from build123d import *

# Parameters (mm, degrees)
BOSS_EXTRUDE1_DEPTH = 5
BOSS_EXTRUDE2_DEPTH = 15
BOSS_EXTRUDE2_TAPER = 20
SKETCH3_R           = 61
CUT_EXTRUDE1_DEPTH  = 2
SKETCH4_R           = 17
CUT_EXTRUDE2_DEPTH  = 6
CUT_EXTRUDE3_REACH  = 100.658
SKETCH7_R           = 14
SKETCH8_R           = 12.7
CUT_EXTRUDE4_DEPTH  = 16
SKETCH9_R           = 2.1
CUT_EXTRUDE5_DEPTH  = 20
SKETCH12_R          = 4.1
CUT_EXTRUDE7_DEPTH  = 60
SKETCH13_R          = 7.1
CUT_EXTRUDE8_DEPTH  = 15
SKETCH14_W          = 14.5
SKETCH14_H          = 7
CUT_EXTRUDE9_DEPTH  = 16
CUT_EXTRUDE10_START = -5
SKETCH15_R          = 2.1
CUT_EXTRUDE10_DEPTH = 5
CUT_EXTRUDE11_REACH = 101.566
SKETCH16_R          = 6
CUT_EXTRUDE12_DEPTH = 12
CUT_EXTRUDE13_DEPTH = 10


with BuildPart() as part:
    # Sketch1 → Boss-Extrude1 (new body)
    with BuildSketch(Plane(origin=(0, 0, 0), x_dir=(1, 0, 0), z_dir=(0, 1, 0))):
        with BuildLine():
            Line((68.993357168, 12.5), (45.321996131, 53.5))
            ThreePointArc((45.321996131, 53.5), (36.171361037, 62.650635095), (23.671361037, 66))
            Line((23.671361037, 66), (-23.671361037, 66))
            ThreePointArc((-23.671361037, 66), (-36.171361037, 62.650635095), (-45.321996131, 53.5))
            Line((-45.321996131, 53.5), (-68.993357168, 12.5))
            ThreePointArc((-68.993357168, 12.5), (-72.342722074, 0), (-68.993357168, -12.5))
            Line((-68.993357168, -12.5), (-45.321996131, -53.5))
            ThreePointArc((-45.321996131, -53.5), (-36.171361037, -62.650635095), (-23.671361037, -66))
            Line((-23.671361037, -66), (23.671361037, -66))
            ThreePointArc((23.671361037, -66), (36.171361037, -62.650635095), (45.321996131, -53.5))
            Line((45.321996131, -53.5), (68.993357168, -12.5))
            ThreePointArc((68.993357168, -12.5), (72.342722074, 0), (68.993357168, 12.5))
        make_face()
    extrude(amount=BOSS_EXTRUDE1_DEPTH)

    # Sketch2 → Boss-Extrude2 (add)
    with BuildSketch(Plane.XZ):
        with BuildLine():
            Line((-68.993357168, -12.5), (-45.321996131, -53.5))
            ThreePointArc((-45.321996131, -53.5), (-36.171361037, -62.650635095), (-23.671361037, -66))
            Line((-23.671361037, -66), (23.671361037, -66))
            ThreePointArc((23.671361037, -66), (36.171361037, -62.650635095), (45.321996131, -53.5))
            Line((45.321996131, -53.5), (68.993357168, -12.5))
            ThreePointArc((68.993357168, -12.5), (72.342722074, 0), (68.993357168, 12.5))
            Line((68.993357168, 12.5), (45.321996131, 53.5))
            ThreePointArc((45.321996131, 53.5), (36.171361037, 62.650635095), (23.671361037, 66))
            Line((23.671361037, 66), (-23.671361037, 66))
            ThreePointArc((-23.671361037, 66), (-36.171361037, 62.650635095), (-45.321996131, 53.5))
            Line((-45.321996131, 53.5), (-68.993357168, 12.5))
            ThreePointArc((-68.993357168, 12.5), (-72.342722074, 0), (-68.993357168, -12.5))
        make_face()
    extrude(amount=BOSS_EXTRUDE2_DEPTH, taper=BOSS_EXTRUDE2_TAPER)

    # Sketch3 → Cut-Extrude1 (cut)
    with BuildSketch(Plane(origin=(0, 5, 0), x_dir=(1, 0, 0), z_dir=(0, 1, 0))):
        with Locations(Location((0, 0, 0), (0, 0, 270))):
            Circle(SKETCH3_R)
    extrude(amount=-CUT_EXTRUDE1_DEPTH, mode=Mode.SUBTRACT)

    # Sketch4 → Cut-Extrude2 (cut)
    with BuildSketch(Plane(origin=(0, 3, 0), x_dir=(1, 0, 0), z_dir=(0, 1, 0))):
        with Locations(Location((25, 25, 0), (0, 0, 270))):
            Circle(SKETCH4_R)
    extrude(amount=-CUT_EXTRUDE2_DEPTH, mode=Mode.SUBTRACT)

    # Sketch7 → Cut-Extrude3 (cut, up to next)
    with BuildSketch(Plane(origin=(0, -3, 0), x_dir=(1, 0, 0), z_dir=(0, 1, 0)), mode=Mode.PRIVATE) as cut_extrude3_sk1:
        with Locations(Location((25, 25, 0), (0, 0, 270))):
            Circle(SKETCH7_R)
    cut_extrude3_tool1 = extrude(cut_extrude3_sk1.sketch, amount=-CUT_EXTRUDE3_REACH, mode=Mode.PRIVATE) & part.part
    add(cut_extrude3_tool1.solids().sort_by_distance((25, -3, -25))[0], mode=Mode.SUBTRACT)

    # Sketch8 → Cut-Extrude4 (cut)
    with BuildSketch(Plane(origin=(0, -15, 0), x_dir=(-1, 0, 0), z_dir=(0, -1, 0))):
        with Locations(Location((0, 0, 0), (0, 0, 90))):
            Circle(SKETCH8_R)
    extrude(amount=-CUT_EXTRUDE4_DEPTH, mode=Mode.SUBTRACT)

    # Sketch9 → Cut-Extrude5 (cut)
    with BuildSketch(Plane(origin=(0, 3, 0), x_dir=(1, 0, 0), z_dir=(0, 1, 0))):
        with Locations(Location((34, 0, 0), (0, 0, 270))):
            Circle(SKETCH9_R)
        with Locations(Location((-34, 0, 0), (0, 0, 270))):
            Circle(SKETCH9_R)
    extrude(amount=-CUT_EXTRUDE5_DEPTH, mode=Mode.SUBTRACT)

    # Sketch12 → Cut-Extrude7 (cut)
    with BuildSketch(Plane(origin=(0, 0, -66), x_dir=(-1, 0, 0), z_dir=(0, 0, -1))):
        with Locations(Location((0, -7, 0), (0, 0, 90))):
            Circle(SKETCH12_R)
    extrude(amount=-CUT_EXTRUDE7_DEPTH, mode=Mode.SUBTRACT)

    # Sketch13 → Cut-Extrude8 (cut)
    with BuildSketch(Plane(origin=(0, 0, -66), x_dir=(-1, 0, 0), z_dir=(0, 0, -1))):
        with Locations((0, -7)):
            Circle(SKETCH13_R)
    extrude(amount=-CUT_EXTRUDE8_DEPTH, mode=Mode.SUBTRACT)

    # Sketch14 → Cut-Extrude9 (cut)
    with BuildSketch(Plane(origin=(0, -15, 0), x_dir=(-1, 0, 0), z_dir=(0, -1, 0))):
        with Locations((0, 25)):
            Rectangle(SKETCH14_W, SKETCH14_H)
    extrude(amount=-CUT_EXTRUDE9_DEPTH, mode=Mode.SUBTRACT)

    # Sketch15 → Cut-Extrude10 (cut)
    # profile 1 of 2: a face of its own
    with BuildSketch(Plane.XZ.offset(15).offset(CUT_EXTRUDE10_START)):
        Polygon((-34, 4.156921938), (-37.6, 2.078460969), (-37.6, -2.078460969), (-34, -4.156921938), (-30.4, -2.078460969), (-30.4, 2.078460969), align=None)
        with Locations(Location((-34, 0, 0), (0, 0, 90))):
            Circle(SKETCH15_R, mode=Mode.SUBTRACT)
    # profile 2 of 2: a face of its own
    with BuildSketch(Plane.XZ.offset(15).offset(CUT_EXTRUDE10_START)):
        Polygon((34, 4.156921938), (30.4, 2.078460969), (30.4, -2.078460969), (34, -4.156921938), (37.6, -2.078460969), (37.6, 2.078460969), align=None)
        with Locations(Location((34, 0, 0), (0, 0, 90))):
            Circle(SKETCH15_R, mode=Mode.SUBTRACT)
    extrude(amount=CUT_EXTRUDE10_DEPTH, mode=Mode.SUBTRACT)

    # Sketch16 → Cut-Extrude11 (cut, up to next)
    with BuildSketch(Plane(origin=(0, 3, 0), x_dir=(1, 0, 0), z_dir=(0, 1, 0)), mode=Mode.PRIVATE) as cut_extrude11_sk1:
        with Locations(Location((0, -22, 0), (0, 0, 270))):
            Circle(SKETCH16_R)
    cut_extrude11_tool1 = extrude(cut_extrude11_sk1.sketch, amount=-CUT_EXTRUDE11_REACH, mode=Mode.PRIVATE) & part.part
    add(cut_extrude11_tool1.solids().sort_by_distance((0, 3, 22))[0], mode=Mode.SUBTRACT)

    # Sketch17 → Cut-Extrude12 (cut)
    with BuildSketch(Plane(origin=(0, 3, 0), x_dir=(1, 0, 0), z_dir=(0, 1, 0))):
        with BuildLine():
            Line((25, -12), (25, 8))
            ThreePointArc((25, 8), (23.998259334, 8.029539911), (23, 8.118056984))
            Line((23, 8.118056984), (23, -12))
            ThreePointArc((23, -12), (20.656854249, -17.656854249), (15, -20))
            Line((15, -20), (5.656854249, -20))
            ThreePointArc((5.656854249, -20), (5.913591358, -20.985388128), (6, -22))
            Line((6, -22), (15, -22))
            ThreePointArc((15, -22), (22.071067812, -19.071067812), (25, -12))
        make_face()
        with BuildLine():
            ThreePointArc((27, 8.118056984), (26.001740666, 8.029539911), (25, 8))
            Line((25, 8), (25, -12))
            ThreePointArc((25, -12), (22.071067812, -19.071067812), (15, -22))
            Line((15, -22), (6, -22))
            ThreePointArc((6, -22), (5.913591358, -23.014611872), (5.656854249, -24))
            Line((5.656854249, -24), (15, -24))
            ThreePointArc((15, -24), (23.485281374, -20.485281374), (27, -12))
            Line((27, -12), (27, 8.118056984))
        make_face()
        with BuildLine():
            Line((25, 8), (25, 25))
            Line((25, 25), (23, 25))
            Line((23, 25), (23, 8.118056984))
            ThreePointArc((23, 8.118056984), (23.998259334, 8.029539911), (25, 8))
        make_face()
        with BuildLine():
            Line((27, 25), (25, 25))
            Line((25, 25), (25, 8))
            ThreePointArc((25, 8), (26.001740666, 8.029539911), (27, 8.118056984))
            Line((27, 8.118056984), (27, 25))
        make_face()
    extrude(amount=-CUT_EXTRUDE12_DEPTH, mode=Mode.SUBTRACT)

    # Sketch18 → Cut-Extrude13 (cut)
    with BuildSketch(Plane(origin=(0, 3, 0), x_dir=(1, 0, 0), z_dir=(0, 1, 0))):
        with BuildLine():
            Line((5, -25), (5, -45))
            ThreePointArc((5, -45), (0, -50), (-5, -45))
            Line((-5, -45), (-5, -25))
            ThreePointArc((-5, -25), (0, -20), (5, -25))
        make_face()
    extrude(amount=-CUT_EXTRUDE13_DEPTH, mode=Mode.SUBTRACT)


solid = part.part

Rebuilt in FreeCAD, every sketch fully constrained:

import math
import FreeCAD as App
import Part
import Sketcher

V = App.Vector
Q = App.Units.Quantity


def add_polygon(sketch, points):
    """Adds a closed chain of lines whose ends are joined by coincident constraints."""
    first, n = sketch.GeometryCount, len(points)
    for a, b in zip(points, points[1:] + points[:1]):
        sketch.addGeometry(Part.LineSegment(App.Vector(*a, 0), App.Vector(*b, 0)), False)
    for i in range(n):
        sketch.addConstraint(Sketcher.Constraint("Coincident", first + i, 2, first + (i + 1) % n, 1))

doc = App.newDocument("Part")
body = doc.addObject("PartDesign::Body", "Body")

sketch1 = doc.addObject("Sketcher::SketchObject", "Sketch")
body.addObject(sketch1)
sketch1.AttachmentSupport = (doc.XZ_Plane, [""])
sketch1.MapMode = "FlatFace"
sketch1.addGeometry([
    Part.LineSegment(V(69, -12, 0), V(45, -54, 0)),
    Part.ArcOfCircle(Part.Circle(V(24, -41, 0), V(0, 0, 1), 25), math.radians(-90), math.radians(-30)),
    Part.LineSegment(V(24, -66, 0), V(-24, -66, 0)),
    Part.ArcOfCircle(Part.Circle(V(-24, -41, 0), V(0, 0, 1), 25), math.radians(-150), math.radians(-90)),
    Part.LineSegment(V(-45, -54, 0), V(-69, -12, 0)),
    Part.ArcOfCircle(Part.Circle(V(-47, 0, 0), V(0, 0, 1), 25), math.radians(150), math.radians(210)),
    Part.LineSegment(V(-69, 12, 0), V(-45, 54, 0)),
    Part.ArcOfCircle(Part.Circle(V(-24, 41, 0), V(0, 0, 1), 25), math.radians(90), math.radians(150)),
    Part.LineSegment(V(-24, 66, 0), V(24, 66, 0)),
    Part.ArcOfCircle(Part.Circle(V(24, 41, 0), V(0, 0, 1), 25), math.radians(30), math.radians(90)),
    Part.LineSegment(V(45, 54, 0), V(69, 12, 0)),
    Part.ArcOfCircle(Part.Circle(V(47, 0, 0), V(0, 0, 1), 25), math.radians(-30), math.radians(30)),
], False)
sketch1.addConstraint([
    Sketcher.Constraint("Tangent", 0, 2, 1, 2),
    Sketcher.Constraint("Tangent", 1, 1, 2, 1),
    Sketcher.Constraint("Tangent", 2, 2, 3, 2),
    Sketcher.Constraint("Tangent", 3, 1, 4, 1),
    Sketcher.Constraint("Tangent", 4, 2, 5, 2),
    Sketcher.Constraint("Tangent", 5, 1, 6, 1),
    Sketcher.Constraint("Tangent", 6, 2, 7, 2),
    Sketcher.Constraint("Tangent", 7, 1, 8, 1),
    Sketcher.Constraint("Tangent", 8, 2, 9, 2),
    Sketcher.Constraint("Tangent", 9, 1, 10, 1),
    Sketcher.Constraint("Tangent", 10, 2, 11, 2),
    Sketcher.Constraint("Tangent", 11, 1, 0, 1),
    Sketcher.Constraint("Horizontal", 2),
    Sketcher.Constraint("Horizontal", 8),
    Sketcher.Constraint("Equal", 1, 3),
    Sketcher.Constraint("Equal", 3, 5),
    Sketcher.Constraint("Equal", 5, 7),
    Sketcher.Constraint("Equal", 7, 9),
    Sketcher.Constraint("Equal", 9, 11),
    Sketcher.Constraint("Symmetric", 1, 3, 7, 3, -1, 1),
    Sketcher.Constraint("Symmetric", 5, 3, 11, 3, -1, 1),
    Sketcher.Constraint("Symmetric", 0, 2, 3, 1, -2),
    Sketcher.Constraint("Parallel", 4, 10),
    Sketcher.Constraint("Radius", 1, 25.0),
    Sketcher.Constraint("Angle", 0, Q("-120 deg")),
    Sketcher.Constraint("DistanceY", 1, 3, -1, 1, 41.0),
    Sketcher.Constraint("DistanceX", 2, 2, 2, 1, 47.342722),
])
pad1 = doc.addObject("PartDesign::Pad", "Pad")
body.addObject(pad1)
pad1.Profile = sketch1
pad1.Length = 5
pad1.Reversed = True

sketch2 = doc.addObject("Sketcher::SketchObject", "Sketch001")
body.addObject(sketch2)
sketch2.AttachmentSupport = (doc.XZ_Plane, [""])
sketch2.MapMode = "FlatFace"
sketch2.addGeometry([
    Part.LineSegment(V(-69, -12, 0), V(-45, -54, 0)),
    Part.ArcOfCircle(Part.Circle(V(-24, -41, 0), V(0, 0, 1), 25), math.radians(-150), math.radians(-90)),
    Part.LineSegment(V(-24, -66, 0), V(24, -66, 0)),
    Part.ArcOfCircle(Part.Circle(V(24, -41, 0), V(0, 0, 1), 25), math.radians(-90), math.radians(-30)),
    Part.LineSegment(V(45, -54, 0), V(69, -12, 0)),
    Part.ArcOfCircle(Part.Circle(V(47, 0, 0), V(0, 0, 1), 25), math.radians(-30), math.radians(30)),
    Part.LineSegment(V(69, 12, 0), V(45, 54, 0)),
    Part.ArcOfCircle(Part.Circle(V(24, 41, 0), V(0, 0, 1), 25), math.radians(30), math.radians(90)),
    Part.LineSegment(V(24, 66, 0), V(-24, 66, 0)),
    Part.ArcOfCircle(Part.Circle(V(-24, 41, 0), V(0, 0, 1), 25), math.radians(90), math.radians(150)),
    Part.LineSegment(V(-45, 54, 0), V(-69, 12, 0)),
    Part.ArcOfCircle(Part.Circle(V(-47, 0, 0), V(0, 0, 1), 25), math.radians(150), math.radians(210)),
], False)
sketch2.addConstraint([
    Sketcher.Constraint("Tangent", 0, 2, 1, 1),
    Sketcher.Constraint("Tangent", 1, 2, 2, 1),
    Sketcher.Constraint("Tangent", 2, 2, 3, 1),
    Sketcher.Constraint("Tangent", 3, 2, 4, 1),
    Sketcher.Constraint("Tangent", 4, 2, 5, 1),
    Sketcher.Constraint("Tangent", 5, 2, 6, 1),
    Sketcher.Constraint("Tangent", 6, 2, 7, 1),
    Sketcher.Constraint("Tangent", 7, 2, 8, 1),
    Sketcher.Constraint("Tangent", 8, 2, 9, 1),
    Sketcher.Constraint("Tangent", 9, 2, 10, 1),
    Sketcher.Constraint("Tangent", 10, 2, 11, 1),
    Sketcher.Constraint("Tangent", 11, 2, 0, 1),
    Sketcher.Constraint("Horizontal", 2),
    Sketcher.Constraint("Horizontal", 8),
    Sketcher.Constraint("Equal", 1, 3),
    Sketcher.Constraint("Equal", 3, 5),
    Sketcher.Constraint("Equal", 5, 7),
    Sketcher.Constraint("Equal", 7, 9),
    Sketcher.Constraint("Equal", 9, 11),
    Sketcher.Constraint("Symmetric", 1, 3, 7, 3, -1, 1),
    Sketcher.Constraint("Symmetric", 5, 3, 11, 3, -1, 1),
    Sketcher.Constraint("Symmetric", 0, 2, 3, 2, -2),
    Sketcher.Constraint("Parallel", 4, 10),
    Sketcher.Constraint("Radius", 1, 25.0),
    Sketcher.Constraint("Angle", 0, Q("-60 deg")),
    Sketcher.Constraint("DistanceY", 1, 3, -1, 1, 41.0),
    Sketcher.Constraint("DistanceX", 2, 1, 2, 2, 47.342722),
])
pad2 = doc.addObject("PartDesign::Pad", "Pad001")
body.addObject(pad2)
pad2.Profile = sketch2
pad2.Length = 15
pad2.TaperAngle = -20

sketch3 = doc.addObject("Sketcher::SketchObject", "Sketch002")
body.addObject(sketch3)
sketch3.AttachmentSupport = (doc.XZ_Plane, [""])
sketch3.MapMode = "FlatFace"
sketch3.AttachmentOffset = App.Placement(V(0, 0, -5), App.Rotation())
sketch3.addGeometry(Part.Circle(V(0, 0, 0), V(0, 0, 1), 61), False)
sketch3.addConstraint([
    Sketcher.Constraint("Coincident", 0, 3, -1, 1),
    Sketcher.Constraint("Diameter", 0, 122.0),
])
pocket1 = doc.addObject("PartDesign::Pocket", "Pocket")
body.addObject(pocket1)
pocket1.Profile = sketch3
pocket1.Length = 2
pocket1.Reversed = True

sketch4 = doc.addObject("Sketcher::SketchObject", "Sketch003")
body.addObject(sketch4)
sketch4.AttachmentSupport = (doc.XZ_Plane, [""])
sketch4.MapMode = "FlatFace"
sketch4.AttachmentOffset = App.Placement(V(0, 0, -3), App.Rotation())
sketch4.addGeometry(Part.Circle(V(25, -25, 0), V(0, 0, 1), 17), False)
sketch4.addConstraint([
    Sketcher.Constraint("Diameter", 0, 34.0),
    Sketcher.Constraint("DistanceX", -1, 1, 0, 3, 25.0),
    Sketcher.Constraint("DistanceY", 0, 3, -1, 1, 25.0),
])
pocket2 = doc.addObject("PartDesign::Pocket", "Pocket001")
body.addObject(pocket2)
pocket2.Profile = sketch4
pocket2.Length = 6
pocket2.Reversed = True

sketch5 = doc.addObject("Sketcher::SketchObject", "Sketch004")
body.addObject(sketch5)
sketch5.AttachmentSupport = (doc.XZ_Plane, [""])
sketch5.MapMode = "FlatFace"
sketch5.AttachmentOffset = App.Placement(V(0, 0, 3), App.Rotation())
sketch5.addGeometry(Part.Circle(V(25, -25, 0), V(0, 0, 1), 14), False)
sketch5.addConstraint([
    Sketcher.Constraint("Diameter", 0, 28.0),
    Sketcher.Constraint("DistanceX", -1, 1, 0, 3, 25.0),
    Sketcher.Constraint("DistanceY", 0, 3, -1, 1, 25.0),
])
pocket3 = doc.addObject("PartDesign::Pocket", "Pocket002")
body.addObject(pocket3)
pocket3.Profile = sketch5
pocket3.Type = "UpToFirst"
pocket3.Reversed = True

sketch6 = doc.addObject("Sketcher::SketchObject", "Sketch005")
body.addObject(sketch6)
sketch6.AttachmentSupport = (doc.XZ_Plane, [""])
sketch6.MapMode = "FlatFace"
sketch6.AttachmentOffset = App.Placement(V(0, 0, 15), App.Rotation())
sketch6.addGeometry(Part.Circle(V(0, 0, 0), V(0, 0, 1), 13), False)
sketch6.addConstraint([
    Sketcher.Constraint("Coincident", 0, 3, -1, 1),
    Sketcher.Constraint("Diameter", 0, 25.4),
])
pocket4 = doc.addObject("PartDesign::Pocket", "Pocket003")
body.addObject(pocket4)
pocket4.Profile = sketch6
pocket4.Length = 16

sketch7 = doc.addObject("Sketcher::SketchObject", "Sketch006")
body.addObject(sketch7)
sketch7.AttachmentSupport = (doc.XZ_Plane, [""])
sketch7.MapMode = "FlatFace"
sketch7.AttachmentOffset = App.Placement(V(0, 0, -3), App.Rotation())
sketch7.addGeometry([
    Part.Circle(V(34, 0, 0), V(0, 0, 1), 2.1),
    Part.Circle(V(-34, 0, 0), V(0, 0, 1), 2.1),
], False)
sketch7.addConstraint([
    Sketcher.Constraint("Equal", 0, 1),
    Sketcher.Constraint("Symmetric", 0, 3, 1, 3, -1, 1),
    Sketcher.Constraint("PointOnObject", 0, 3, -1),
    Sketcher.Constraint("Diameter", 0, 4.2),
    Sketcher.Constraint("DistanceX", -1, 1, 0, 3, 34.0),
])
pocket5 = doc.addObject("PartDesign::Pocket", "Pocket004")
body.addObject(pocket5)
pocket5.Profile = sketch7
pocket5.Length = 20
pocket5.Reversed = True

sketch8 = doc.addObject("Sketcher::SketchObject", "Sketch007")
body.addObject(sketch8)
sketch8.AttachmentSupport = (doc.XY_Plane, [""])
sketch8.MapMode = "FlatFace"
sketch8.AttachmentOffset = App.Placement(V(0, 0, -66), App.Rotation())
sketch8.addGeometry(Part.Circle(V(0, -7, 0), V(0, 0, 1), 4.1), False)
sketch8.addConstraint([
    Sketcher.Constraint("PointOnObject", 0, 3, -2),
    Sketcher.Constraint("Diameter", 0, 8.2),
    Sketcher.Constraint("DistanceY", 0, 3, -1, 1, 7.0),
])
pocket6 = doc.addObject("PartDesign::Pocket", "Pocket005")
body.addObject(pocket6)
pocket6.Profile = sketch8
pocket6.Length = 60
pocket6.Reversed = True

sketch9 = doc.addObject("Sketcher::SketchObject", "Sketch008")
body.addObject(sketch9)
sketch9.AttachmentSupport = (doc.XY_Plane, [""])
sketch9.MapMode = "FlatFace"
sketch9.AttachmentOffset = App.Placement(V(0, 0, -66), App.Rotation())
sketch9.addGeometry(Part.Circle(V(0, -7, 0), V(0, 0, 1), 7), False)
sketch9.addConstraint([
    Sketcher.Constraint("PointOnObject", 0, 3, -2),
    Sketcher.Constraint("Diameter", 0, 14.2),
    Sketcher.Constraint("DistanceY", 0, 3, -1, 1, 7.0),
])
pocket7 = doc.addObject("PartDesign::Pocket", "Pocket006")
body.addObject(pocket7)
pocket7.Profile = sketch9
pocket7.Length = 15
pocket7.Reversed = True

sketch10 = doc.addObject("Sketcher::SketchObject", "Sketch009")
body.addObject(sketch10)
sketch10.AttachmentSupport = (doc.XZ_Plane, [""])
sketch10.MapMode = "FlatFace"
sketch10.AttachmentOffset = App.Placement(V(0, 0, 15), App.Rotation())
add_polygon(sketch10, [(7, -28), (7, -22), (-7, -22), (-7, -28)])
sketch10.addConstraint([
    Sketcher.Constraint("Vertical", 0),
    Sketcher.Constraint("Horizontal", 1),
    Sketcher.Constraint("Vertical", 2),
    Sketcher.Constraint("Horizontal", 3),
    Sketcher.Constraint("DistanceY", 0, 1, 0, 2, 7.0),
    Sketcher.Constraint("DistanceX", 1, 2, 1, 1, 14.5),
    Sketcher.Constraint("DistanceY", 0, 2, -1, 1, 21.5),
    Sketcher.Constraint("DistanceX", -1, 1, 0, 2, 7.25),
])
pocket8 = doc.addObject("PartDesign::Pocket", "Pocket007")
body.addObject(pocket8)
pocket8.Profile = sketch10
pocket8.Length = 16

sketch11 = doc.addObject("Sketcher::SketchObject", "Sketch010")
body.addObject(sketch11)
sketch11.AttachmentSupport = (doc.XZ_Plane, [""])
sketch11.MapMode = "FlatFace"
sketch11.AttachmentOffset = App.Placement(V(0, 0, 10), App.Rotation())
add_polygon(sketch11, [(-34, 4.2), (-37.6, 2.1), (-37.6, -2.1), (-34, -4.2), (-30.4, -2.1), (-30.4, 2.1)])
sketch11.addGeometry(Part.Circle(V(-34, 0, 0), V(0, 0, 1), 2.1), False)
add_polygon(sketch11, [(34, 4.2), (30.4, 2.1), (30.4, -2.1), (34, -4.2), (37.6, -2.1), (37.6, 2.1)])
sketch11.addGeometry(Part.Circle(V(34, 0, 0), V(0, 0, 1), 2.1), False)
sketch11.addConstraint([
    Sketcher.Constraint("Vertical", 1),
    Sketcher.Constraint("Vertical", 4),
    Sketcher.Constraint("Vertical", 8),
    Sketcher.Constraint("Vertical", 11),
    Sketcher.Constraint("Equal", 6, 13),
    Sketcher.Constraint("Symmetric", 6, 3, 13, 3, -1, 1),
    Sketcher.Constraint("Symmetric", 3, 2, 7, 2, -1, 1),
    Sketcher.Constraint("Symmetric", 5, 2, 9, 2, -1, 1),
    Sketcher.Constraint("Symmetric", 0, 2, 10, 2, -1, 1),
    Sketcher.Constraint("Symmetric", 2, 2, 12, 2, -1, 1),
    Sketcher.Constraint("Symmetric", 2, 2, 9, 2, -2),
    Sketcher.Constraint("PointOnObject", 6, 3, -1),
    Sketcher.Constraint("Parallel", 0, 3),
    Sketcher.Constraint("Parallel", 2, 5),
    Sketcher.Constraint("Parallel", 5, 9),
    Sketcher.Constraint("Parallel", 9, 12),
    Sketcher.Constraint("Horizontal", 1, 2, 3, 2),
    Sketcher.Constraint("Horizontal", 0, 2, 4, 2),
    Sketcher.Constraint("Vertical", 6, 3, 2, 2),
    Sketcher.Constraint("Diameter", 6, 4.2),
    Sketcher.Constraint("Angle", 0, Q("-150 deg")),
    Sketcher.Constraint("DistanceX", 6, 3, -1, 1, 34.0),
    Sketcher.Constraint("DistanceX", 0, 2, -1, 1, 37.6),
    Sketcher.Constraint("DistanceY", 1, 2, 1, 1, 4.156922),
])
pocket9 = doc.addObject("PartDesign::Pocket", "Pocket008")
body.addObject(pocket9)
pocket9.Profile = sketch11
pocket9.Length = 5
pocket9.Reversed = True

sketch12 = doc.addObject("Sketcher::SketchObject", "Sketch011")
body.addObject(sketch12)
sketch12.AttachmentSupport = (doc.XZ_Plane, [""])
sketch12.MapMode = "FlatFace"
sketch12.AttachmentOffset = App.Placement(V(0, 0, -3), App.Rotation())
sketch12.addGeometry(Part.Circle(V(0, 22, 0), V(0, 0, 1), 6), False)
sketch12.addConstraint([
    Sketcher.Constraint("PointOnObject", 0, 3, -2),
    Sketcher.Constraint("Diameter", 0, 12.0),
    Sketcher.Constraint("DistanceY", -1, 1, 0, 3, 22.0),
])
pocket10 = doc.addObject("PartDesign::Pocket", "Pocket009")
body.addObject(pocket10)
pocket10.Profile = sketch12
pocket10.Type = "UpToFirst"
pocket10.Reversed = True

sketch13 = doc.addObject("Sketcher::SketchObject", "Sketch012")
body.addObject(sketch13)
sketch13.AttachmentSupport = (doc.XZ_Plane, [""])
sketch13.MapMode = "FlatFace"
sketch13.AttachmentOffset = App.Placement(V(0, 0, -3), App.Rotation())
sketch13.addGeometry([
    Part.ArcOfCircle(Part.Circle(V(15, 12, 0), V(0, 0, 1), 8), math.radians(0), math.radians(90)),
    Part.LineSegment(V(15, 20, 0), V(5.7, 20, 0)),
    Part.ArcOfCircle(Part.Circle(V(0, 22, 0), V(0, 0, 1), 6), math.radians(-19.47), math.radians(0)),
    Part.ArcOfCircle(Part.Circle(V(0, 22, 0), V(0, 0, 1), 6), math.radians(0), math.radians(19.47)),
    Part.LineSegment(V(5.7, 24, 0), V(15, 24, 0)),
    Part.ArcOfCircle(Part.Circle(V(15, 12, 0), V(0, 0, 1), 12), math.radians(0), math.radians(90)),
    Part.LineSegment(V(27, 12, 0), V(27, -25, 0)),
    Part.LineSegment(V(27, -25, 0), V(23, -25, 0)),
    Part.LineSegment(V(23, -25, 0), V(23, 12, 0)),
], False)
sketch13.addConstraint([
    Sketcher.Constraint("Tangent", 0, 2, 1, 1),
    Sketcher.Constraint("Coincident", 1, 2, 2, 1),
    Sketcher.Constraint("Tangent", 2, 2, 3, 1),
    Sketcher.Constraint("Coincident", 3, 2, 4, 1),
    Sketcher.Constraint("Tangent", 4, 2, 5, 2),
    Sketcher.Constraint("Tangent", 5, 1, 6, 1),
    Sketcher.Constraint("Coincident", 6, 2, 7, 1),
    Sketcher.Constraint("Coincident", 7, 2, 8, 1),
    Sketcher.Constraint("Tangent", 8, 2, 0, 1),
    Sketcher.Constraint("Horizontal", 1),
    Sketcher.Constraint("Horizontal", 4),
    Sketcher.Constraint("Vertical", 6),
    Sketcher.Constraint("Horizontal", 7),
    Sketcher.Constraint("Vertical", 8),
    Sketcher.Constraint("Coincident", 5, 3, 0, 3),
    Sketcher.Constraint("Equal", 2, 3),
    Sketcher.Constraint("PointOnObject", 2, 3, -2),
    Sketcher.Constraint("Horizontal", 3, 3, 2, 2),
    Sketcher.Constraint("Vertical", 1, 2, 3, 2),
    Sketcher.Constraint("Radius", 0, 8.0),
    Sketcher.Constraint("Radius", 2, 6.0),
    Sketcher.Constraint("Radius", 5, 12.0),
    Sketcher.Constraint("DistanceY", 6, 2, 6, 1, 37.0),
    Sketcher.Constraint("DistanceX", -1, 1, 0, 3, 15.0),
    Sketcher.Constraint("DistanceY", -1, 1, 0, 3, 12.0),
])
pocket11 = doc.addObject("PartDesign::Pocket", "Pocket010")
body.addObject(pocket11)
pocket11.Profile = sketch13
pocket11.Length = 12
pocket11.Reversed = True

sketch14 = doc.addObject("Sketcher::SketchObject", "Sketch013")
body.addObject(sketch14)
sketch14.AttachmentSupport = (doc.XZ_Plane, [""])
sketch14.MapMode = "FlatFace"
sketch14.AttachmentOffset = App.Placement(V(0, 0, -3), App.Rotation())
sketch14.addGeometry([
    Part.LineSegment(V(5, 45, 0), V(5, 25, 0)),
    Part.ArcOfCircle(Part.Circle(V(0, 25, 0), V(0, 0, 1), 5), math.radians(180), math.radians(360)),
    Part.LineSegment(V(-5, 25, 0), V(-5, 45, 0)),
    Part.ArcOfCircle(Part.Circle(V(0, 45, 0), V(0, 0, 1), 5), math.radians(0), math.radians(180)),
], False)
sketch14.addConstraint([
    Sketcher.Constraint("Tangent", 0, 2, 1, 2),
    Sketcher.Constraint("Tangent", 1, 1, 2, 1),
    Sketcher.Constraint("Tangent", 2, 2, 3, 2),
    Sketcher.Constraint("Tangent", 3, 1, 0, 1),
    Sketcher.Constraint("Vertical", 0),
    Sketcher.Constraint("Vertical", 2),
    Sketcher.Constraint("PointOnObject", 1, 3, -2),
    Sketcher.Constraint("Radius", 1, 5.0),
    Sketcher.Constraint("DistanceY", 0, 2, 0, 1, 20.0),
    Sketcher.Constraint("DistanceY", -1, 1, 1, 3, 25.0),
])
pocket12 = doc.addObject("PartDesign::Pocket", "Pocket011")
body.addObject(pocket12)
pocket12.Profile = sketch14
pocket12.Length = 10
pocket12.Reversed = True

doc.recompute()
